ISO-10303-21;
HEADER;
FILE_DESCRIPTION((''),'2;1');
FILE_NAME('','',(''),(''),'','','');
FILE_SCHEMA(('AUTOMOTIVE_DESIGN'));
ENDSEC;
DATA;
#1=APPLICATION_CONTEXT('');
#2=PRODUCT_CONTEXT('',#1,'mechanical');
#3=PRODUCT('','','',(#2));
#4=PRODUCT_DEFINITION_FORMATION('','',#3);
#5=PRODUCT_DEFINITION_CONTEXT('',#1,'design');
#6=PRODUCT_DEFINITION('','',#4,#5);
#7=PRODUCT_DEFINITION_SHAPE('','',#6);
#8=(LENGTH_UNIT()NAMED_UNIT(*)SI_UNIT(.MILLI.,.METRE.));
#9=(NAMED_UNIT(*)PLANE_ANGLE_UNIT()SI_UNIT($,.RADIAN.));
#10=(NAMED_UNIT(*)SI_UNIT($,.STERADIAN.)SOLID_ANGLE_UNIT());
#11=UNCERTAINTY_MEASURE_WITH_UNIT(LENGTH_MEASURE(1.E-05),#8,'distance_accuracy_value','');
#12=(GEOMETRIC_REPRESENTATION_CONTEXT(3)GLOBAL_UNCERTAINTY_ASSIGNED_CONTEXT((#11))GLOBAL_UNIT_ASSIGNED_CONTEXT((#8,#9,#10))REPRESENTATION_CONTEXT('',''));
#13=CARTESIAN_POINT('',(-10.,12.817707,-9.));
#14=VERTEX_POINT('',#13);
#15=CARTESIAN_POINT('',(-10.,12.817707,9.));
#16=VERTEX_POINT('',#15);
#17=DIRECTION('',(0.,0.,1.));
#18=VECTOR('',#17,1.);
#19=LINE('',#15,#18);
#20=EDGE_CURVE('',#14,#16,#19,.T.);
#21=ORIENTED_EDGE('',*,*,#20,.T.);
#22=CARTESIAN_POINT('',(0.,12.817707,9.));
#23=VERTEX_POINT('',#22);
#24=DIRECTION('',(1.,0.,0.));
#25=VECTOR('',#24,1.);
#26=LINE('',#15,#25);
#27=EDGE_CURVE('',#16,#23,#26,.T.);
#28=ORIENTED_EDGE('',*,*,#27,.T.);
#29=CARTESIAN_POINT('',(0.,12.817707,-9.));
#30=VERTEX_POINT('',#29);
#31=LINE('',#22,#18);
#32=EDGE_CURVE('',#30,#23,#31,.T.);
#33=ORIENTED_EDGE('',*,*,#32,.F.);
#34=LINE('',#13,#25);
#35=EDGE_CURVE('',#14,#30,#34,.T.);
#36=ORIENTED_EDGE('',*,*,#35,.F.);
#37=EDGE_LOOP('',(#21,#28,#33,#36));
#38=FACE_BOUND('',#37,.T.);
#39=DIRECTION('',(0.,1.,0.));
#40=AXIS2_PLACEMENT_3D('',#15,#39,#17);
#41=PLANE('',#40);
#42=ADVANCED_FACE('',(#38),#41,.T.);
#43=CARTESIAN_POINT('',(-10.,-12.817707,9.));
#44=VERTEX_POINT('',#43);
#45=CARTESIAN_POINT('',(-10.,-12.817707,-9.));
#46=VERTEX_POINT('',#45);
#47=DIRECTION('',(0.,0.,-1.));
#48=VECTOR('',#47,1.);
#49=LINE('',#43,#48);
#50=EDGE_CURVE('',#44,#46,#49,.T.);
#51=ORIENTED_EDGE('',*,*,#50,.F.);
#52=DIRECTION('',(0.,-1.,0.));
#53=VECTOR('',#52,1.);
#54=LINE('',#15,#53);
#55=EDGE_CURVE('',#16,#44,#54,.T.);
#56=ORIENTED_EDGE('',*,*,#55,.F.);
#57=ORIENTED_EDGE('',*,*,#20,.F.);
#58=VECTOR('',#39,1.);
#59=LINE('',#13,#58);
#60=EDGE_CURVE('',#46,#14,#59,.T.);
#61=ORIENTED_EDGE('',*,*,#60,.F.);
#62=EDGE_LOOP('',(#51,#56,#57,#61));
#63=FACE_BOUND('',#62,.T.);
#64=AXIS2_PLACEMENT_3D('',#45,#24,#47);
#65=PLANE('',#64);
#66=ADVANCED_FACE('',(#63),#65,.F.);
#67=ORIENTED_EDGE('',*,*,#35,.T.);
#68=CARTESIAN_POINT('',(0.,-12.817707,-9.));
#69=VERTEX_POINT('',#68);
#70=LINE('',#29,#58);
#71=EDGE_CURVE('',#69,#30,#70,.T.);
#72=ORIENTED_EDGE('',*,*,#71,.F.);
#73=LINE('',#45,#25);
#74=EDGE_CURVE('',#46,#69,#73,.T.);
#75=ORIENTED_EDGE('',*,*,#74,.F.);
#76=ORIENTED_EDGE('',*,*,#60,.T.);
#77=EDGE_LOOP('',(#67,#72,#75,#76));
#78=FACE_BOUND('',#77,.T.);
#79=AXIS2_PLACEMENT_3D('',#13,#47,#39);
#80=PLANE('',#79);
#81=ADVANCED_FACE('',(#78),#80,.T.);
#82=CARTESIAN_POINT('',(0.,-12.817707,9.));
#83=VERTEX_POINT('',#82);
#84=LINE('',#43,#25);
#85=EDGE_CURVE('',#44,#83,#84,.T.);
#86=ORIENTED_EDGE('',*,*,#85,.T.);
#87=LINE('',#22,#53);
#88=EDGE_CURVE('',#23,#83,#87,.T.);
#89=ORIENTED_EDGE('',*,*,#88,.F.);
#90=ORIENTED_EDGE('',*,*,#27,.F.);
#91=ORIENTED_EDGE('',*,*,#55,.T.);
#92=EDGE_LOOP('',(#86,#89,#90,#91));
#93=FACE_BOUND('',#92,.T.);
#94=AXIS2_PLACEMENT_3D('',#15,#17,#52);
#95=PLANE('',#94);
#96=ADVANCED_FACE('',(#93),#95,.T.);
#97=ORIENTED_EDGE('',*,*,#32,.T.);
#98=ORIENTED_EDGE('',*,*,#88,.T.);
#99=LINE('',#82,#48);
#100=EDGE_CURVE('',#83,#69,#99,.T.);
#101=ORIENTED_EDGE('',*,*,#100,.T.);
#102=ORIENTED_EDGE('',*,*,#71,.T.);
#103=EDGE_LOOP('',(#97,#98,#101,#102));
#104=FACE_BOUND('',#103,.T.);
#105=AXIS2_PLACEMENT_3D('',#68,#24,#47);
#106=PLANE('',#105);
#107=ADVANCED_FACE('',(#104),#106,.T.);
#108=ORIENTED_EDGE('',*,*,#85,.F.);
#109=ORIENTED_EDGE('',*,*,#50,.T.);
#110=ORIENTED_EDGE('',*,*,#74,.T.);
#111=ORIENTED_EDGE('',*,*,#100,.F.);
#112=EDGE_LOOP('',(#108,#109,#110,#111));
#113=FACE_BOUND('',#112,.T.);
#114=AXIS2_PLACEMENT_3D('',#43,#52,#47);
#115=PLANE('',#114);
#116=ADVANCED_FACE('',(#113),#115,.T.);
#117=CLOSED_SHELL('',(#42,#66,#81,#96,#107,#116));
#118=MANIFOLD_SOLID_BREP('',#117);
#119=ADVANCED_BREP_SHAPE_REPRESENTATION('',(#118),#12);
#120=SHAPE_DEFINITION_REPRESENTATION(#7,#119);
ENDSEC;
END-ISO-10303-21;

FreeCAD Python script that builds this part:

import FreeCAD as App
import Part
import Sketcher

doc = App.newDocument("Part")
body = doc.addObject("PartDesign::Body", "Body")

sketch1 = body.newObject("Sketcher::SketchObject", "Sketch")
sketch1.AttachmentSupport = (doc.getObject("YZ_Plane"), [""])
sketch1.MapMode = "FlatFace"
sketch1.addGeometry([
    Part.LineSegment(App.Vector(13, 9, 0), App.Vector(-13, 9, 0)),
    Part.LineSegment(App.Vector(-13, 9, 0), App.Vector(-13, -9, 0)),
    Part.LineSegment(App.Vector(-13, -9, 0), App.Vector(13, -9, 0)),
    Part.LineSegment(App.Vector(13, -9, 0), App.Vector(13, 9, 0)),
], False)
sketch1.addConstraint([
    Sketcher.Constraint("Coincident", 0, 2, 1, 1),
    Sketcher.Constraint("Coincident", 1, 2, 2, 1),
    Sketcher.Constraint("Coincident", 2, 2, 3, 1),
    Sketcher.Constraint("Coincident", 3, 2, 0, 1),
    Sketcher.Constraint("Horizontal", 0),
    Sketcher.Constraint("Vertical", 1),
    Sketcher.Constraint("Horizontal", 2),
    Sketcher.Constraint("Vertical", 3),
    Sketcher.Constraint("Symmetric", 0, 2, 2, 2, -1, 1),
    Sketcher.Constraint("DistanceY", 1, 2, 1, 1, 18.0),
    Sketcher.Constraint("DistanceX", 0, 2, 0, 1, 25.635415),
])
pad1 = body.newObject("PartDesign::Pad", "Pad")
pad1.Profile = sketch1
pad1.Length = 10
pad1.Reversed = True

doc.recompute()
